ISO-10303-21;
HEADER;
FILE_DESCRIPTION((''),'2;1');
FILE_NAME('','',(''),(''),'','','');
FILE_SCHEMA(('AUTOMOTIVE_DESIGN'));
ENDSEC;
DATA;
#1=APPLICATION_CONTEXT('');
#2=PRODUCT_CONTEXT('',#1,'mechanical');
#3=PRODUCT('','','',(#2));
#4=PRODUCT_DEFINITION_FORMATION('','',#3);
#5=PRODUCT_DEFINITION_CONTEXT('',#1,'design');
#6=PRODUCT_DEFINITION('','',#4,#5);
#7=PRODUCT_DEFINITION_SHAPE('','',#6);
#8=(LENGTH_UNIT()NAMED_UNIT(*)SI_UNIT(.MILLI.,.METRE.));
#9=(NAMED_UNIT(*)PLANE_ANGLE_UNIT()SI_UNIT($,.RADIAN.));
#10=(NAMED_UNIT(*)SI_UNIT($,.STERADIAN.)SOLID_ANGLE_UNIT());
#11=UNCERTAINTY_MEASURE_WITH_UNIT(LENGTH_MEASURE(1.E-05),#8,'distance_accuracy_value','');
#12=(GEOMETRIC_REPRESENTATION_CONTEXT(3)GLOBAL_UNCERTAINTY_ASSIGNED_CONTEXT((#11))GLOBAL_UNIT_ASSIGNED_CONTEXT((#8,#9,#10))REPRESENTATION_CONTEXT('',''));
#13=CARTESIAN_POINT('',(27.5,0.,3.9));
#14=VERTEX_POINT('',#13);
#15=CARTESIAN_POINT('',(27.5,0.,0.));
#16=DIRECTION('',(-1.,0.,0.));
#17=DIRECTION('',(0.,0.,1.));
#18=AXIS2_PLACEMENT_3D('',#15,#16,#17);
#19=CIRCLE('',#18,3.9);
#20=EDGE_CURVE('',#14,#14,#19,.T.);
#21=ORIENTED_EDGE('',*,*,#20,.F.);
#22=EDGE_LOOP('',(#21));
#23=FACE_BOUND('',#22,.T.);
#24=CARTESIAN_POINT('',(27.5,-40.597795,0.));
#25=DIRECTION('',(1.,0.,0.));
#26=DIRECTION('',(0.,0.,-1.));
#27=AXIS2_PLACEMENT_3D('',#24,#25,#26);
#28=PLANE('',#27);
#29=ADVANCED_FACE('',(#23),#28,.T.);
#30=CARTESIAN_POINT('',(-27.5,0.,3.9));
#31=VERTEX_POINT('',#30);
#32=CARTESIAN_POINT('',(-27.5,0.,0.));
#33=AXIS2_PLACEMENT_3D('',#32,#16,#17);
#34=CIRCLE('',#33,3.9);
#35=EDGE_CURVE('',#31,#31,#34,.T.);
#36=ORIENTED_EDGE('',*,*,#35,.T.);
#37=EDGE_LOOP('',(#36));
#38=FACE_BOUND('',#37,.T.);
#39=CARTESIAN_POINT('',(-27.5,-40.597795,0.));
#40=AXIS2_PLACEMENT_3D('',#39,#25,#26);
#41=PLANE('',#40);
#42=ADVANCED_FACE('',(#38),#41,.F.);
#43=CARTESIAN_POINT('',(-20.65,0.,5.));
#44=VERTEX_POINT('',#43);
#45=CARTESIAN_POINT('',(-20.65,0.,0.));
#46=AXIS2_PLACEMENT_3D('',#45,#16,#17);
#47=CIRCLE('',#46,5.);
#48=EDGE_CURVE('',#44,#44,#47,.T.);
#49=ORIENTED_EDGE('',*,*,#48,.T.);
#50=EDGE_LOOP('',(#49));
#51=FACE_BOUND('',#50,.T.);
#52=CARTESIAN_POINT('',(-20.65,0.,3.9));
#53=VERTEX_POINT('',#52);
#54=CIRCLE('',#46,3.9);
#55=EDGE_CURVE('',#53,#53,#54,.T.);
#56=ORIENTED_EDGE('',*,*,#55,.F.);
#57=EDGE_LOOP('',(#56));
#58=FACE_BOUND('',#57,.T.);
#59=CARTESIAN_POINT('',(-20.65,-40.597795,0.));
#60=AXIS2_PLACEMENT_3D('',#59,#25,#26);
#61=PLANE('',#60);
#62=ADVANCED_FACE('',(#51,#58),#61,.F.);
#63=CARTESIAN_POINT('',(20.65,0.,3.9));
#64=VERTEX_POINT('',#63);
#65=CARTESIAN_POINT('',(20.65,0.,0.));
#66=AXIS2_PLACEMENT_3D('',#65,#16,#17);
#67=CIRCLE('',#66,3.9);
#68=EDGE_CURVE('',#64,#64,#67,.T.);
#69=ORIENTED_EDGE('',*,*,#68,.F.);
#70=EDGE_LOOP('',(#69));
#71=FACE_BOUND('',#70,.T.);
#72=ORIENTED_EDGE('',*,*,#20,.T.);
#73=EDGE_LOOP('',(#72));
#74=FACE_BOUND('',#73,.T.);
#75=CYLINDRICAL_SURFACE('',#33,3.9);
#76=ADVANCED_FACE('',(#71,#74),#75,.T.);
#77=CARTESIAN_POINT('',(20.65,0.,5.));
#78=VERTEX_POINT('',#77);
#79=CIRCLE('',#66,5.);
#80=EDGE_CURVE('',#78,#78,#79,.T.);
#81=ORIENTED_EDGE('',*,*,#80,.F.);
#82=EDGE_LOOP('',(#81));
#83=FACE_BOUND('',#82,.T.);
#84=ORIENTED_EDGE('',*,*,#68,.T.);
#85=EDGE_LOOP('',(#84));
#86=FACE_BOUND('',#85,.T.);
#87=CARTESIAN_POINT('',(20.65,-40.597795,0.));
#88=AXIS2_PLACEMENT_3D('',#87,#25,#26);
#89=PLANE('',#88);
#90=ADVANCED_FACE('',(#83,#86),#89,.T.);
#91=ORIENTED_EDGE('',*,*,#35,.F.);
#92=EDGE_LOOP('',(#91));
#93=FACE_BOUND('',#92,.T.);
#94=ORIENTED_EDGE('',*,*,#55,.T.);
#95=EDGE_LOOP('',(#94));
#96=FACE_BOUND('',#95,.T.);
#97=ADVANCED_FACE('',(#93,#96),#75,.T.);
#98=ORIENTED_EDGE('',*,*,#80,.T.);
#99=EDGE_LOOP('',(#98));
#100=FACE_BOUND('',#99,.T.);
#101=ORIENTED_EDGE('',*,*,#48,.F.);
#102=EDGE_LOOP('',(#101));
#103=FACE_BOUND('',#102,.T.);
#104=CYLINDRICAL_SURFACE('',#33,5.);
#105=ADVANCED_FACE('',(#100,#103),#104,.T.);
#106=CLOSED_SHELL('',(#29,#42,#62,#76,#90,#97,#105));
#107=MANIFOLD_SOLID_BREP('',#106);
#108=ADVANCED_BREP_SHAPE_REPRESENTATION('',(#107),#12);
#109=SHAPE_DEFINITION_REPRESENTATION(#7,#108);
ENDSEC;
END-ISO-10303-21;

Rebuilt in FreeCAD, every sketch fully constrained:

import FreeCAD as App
import Part
import Sketcher
from FreeCAD import Vector
Q = App.Units.Quantity


def add_polygon(sketch, points):
    """Adds a closed chain of lines whose ends are joined by coincident constraints."""
    first, n = sketch.GeometryCount, len(points)
    for a, b in zip(points, points[1:] + points[:1]):
        sketch.addGeometry(Part.LineSegment(App.Vector(*a, 0), App.Vector(*b, 0)), False)
    for i in range(n):
        sketch.addConstraint(Sketcher.Constraint("Coincident", first + i, 2, first + (i + 1) % n, 1))

doc = App.newDocument("Part")
body = doc.addObject("PartDesign::Body", "Body")

sketch1 = doc.addObject("Sketcher::SketchObject", "Sketch")
body.addObject(sketch1)
sketch1.AttachmentSupport = (doc.XY_Plane, [""])
sketch1.MapMode = "FlatFace"
add_polygon(sketch1, [(20.6, 5), (-20.6, 5), (-20.6, 3.9), (-27.5, 3.9), (-27.5, 0), (27.5, 0), (27.5, 3.9), (20.6, 3.9)])
sketch1.addConstraint([
    Sketcher.Constraint("Horizontal", 0),
    Sketcher.Constraint("Vertical", 1),
    Sketcher.Constraint("Horizontal", 2),
    Sketcher.Constraint("Vertical", 3),
    Sketcher.Constraint("Horizontal", 4),
    Sketcher.Constraint("Vertical", 5),
    Sketcher.Constraint("Horizontal", 6),
    Sketcher.Constraint("Vertical", 7),
    Sketcher.Constraint("Symmetric", 3, 2, 4, 2, -1, 1),
    Sketcher.Constraint("Symmetric", 1, 2, 6, 2, -2),
    Sketcher.Constraint("DistanceX", 4, 1, 4, 2, Q("55 mm")),
    Sketcher.Constraint("DistanceX", 0, 2, 0, 1, Q("41.3 mm")),
    Sketcher.Constraint("DistanceY", 1, 2, 1, 1, Q("1.1 mm")),
    Sketcher.Constraint("DistanceY", 3, 2, 3, 1, Q("3.9 mm")),
])
revolution = doc.addObject("PartDesign::Revolution", "Revolution")
body.addObject(revolution)
revolution.Profile = sketch1
revolution.ReferenceAxis = (sketch1, ["H_Axis"])
revolution.Angle = 360

doc.recompute()
